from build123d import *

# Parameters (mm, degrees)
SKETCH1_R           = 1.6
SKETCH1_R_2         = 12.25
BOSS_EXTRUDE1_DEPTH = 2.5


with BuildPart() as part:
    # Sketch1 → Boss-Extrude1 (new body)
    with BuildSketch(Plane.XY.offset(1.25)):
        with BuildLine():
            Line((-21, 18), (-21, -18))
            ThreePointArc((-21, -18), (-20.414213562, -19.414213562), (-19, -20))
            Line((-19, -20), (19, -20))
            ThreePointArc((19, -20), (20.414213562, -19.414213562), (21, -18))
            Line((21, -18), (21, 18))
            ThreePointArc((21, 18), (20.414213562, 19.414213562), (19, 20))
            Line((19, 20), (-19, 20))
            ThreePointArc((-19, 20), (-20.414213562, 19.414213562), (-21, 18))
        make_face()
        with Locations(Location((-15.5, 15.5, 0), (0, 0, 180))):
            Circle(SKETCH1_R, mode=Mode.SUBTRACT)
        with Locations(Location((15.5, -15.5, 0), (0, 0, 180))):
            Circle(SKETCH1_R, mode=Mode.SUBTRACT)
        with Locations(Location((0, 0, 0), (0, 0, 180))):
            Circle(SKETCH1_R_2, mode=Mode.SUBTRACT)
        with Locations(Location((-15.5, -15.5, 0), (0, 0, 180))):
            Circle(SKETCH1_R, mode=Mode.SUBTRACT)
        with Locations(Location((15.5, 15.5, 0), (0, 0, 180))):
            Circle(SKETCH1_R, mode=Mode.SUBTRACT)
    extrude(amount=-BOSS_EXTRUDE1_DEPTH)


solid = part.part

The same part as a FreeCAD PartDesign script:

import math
import FreeCAD as App
import Part
import Sketcher

V = App.Vector

doc = App.newDocument("Part")
params = doc.addObject("Spreadsheet::Sheet", "Params")
for row, (alias, value) in enumerate([
    ("sketch1_radius", "2 mm"),
    ("sketch1_diameter", "3.2 mm"),
    ("sketch1_diameter2", "24.5 mm"),
    ("sketch1_width", "38 mm"),
    ("sketch1_height", "36 mm"),
    ("pad1_length", "2.5 mm"),
], start=1):
    params.set(f"A{row}", alias)
    params.set(f"B{row}", "=" + value)
    params.setAlias(f"B{row}", alias)

body = doc.addObject("PartDesign::Body", "Body")

sketch1 = doc.addObject("Sketcher::SketchObject", "Sketch")
body.addObject(sketch1)
sketch1.AttachmentSupport = (doc.XY_Plane, [""])
sketch1.MapMode = "FlatFace"
sketch1.AttachmentOffset = App.Placement(V(0, 0, 1.25), App.Rotation())
sketch1.addGeometry([
    Part.LineSegment(V(-21, 18, 0), V(-21, -18, 0)),
    Part.ArcOfCircle(Part.Circle(V(-19, -18, 0), V(0, 0, 1), 2), math.radians(-180), math.radians(-90)),
    Part.LineSegment(V(-19, -20, 0), V(19, -20, 0)),
    Part.ArcOfCircle(Part.Circle(V(19, -18, 0), V(0, 0, 1), 2), math.radians(-90), math.radians(0)),
    Part.LineSegment(V(21, -18, 0), V(21, 18, 0)),
    Part.ArcOfCircle(Part.Circle(V(19, 18, 0), V(0, 0, 1), 2), math.radians(0), math.radians(90)),
    Part.LineSegment(V(19, 20, 0), V(-19, 20, 0)),
    Part.ArcOfCircle(Part.Circle(V(-19, 18, 0), V(0, 0, 1), 2), math.radians(90), math.radians(180)),
    Part.Circle(V(-15.5, -15.5, 0), V(0, 0, 1), 1.6),
    Part.Circle(V(15.5, -15.5, 0), V(0, 0, 1), 1.6),
    Part.Circle(V(-15.5, 15.5, 0), V(0, 0, 1), 1.6),
    Part.Circle(V(0, 0, 0), V(0, 0, 1), 12.2),
    Part.Circle(V(15.5, 15.5, 0), V(0, 0, 1), 1.6),
], False)
sketch1.addConstraint([
    Sketcher.Constraint("Tangent", 0, 2, 1, 1),
    Sketcher.Constraint("Tangent", 1, 2, 2, 1),
    Sketcher.Constraint("Tangent", 2, 2, 3, 1),
    Sketcher.Constraint("Tangent", 3, 2, 4, 1),
    Sketcher.Constraint("Tangent", 4, 2, 5, 1),
    Sketcher.Constraint("Tangent", 5, 2, 6, 1),
    Sketcher.Constraint("Tangent", 6, 2, 7, 1),
    Sketcher.Constraint("Tangent", 7, 2, 0, 1),
    Sketcher.Constraint("Vertical", 0),
    Sketcher.Constraint("Horizontal", 2),
    Sketcher.Constraint("Vertical", 4),
    Sketcher.Constraint("Horizontal", 6),
    Sketcher.Constraint("Coincident", 11, 3, -1, 1),
    Sketcher.Constraint("Equal", 1, 3),
    Sketcher.Constraint("Equal", 3, 5),
    Sketcher.Constraint("Equal", 5, 7),
    Sketcher.Constraint("Equal", 8, 9),
    Sketcher.Constraint("Equal", 9, 10),
    Sketcher.Constraint("Equal", 10, 12),
    Sketcher.Constraint("Symmetric", 1, 3, 5, 3, -1, 1),
    Sketcher.Constraint("Symmetric", 9, 3, 10, 3, -1, 1),
    Sketcher.Constraint("Symmetric", 8, 3, 12, 3, -1, 1),
    Sketcher.Constraint("Symmetric", 8, 3, 9, 3, -2),
    Sketcher.Constraint("Radius", 1, 2.0),
    Sketcher.Constraint("Diameter", 8, 3.2),
    Sketcher.Constraint("Diameter", 11, 24.5),
    Sketcher.Constraint("DistanceX", 2, 1, 2, 2, 38.0),
    Sketcher.Constraint("DistanceY", 0, 2, 0, 1, 36.0),
    Sketcher.Constraint("DistanceX", 8, 3, 9, 3, 31.0),
    Sketcher.Constraint("DistanceY", 8, 3, 10, 3, 31.0),
])
sketch1.setExpression("Constraints[23]", "Params.sketch1_radius")
sketch1.setExpression("Constraints[24]", "Params.sketch1_diameter")
sketch1.setExpression("Constraints[25]", "Params.sketch1_diameter2")
sketch1.setExpression("Constraints[26]", "Params.sketch1_width")
sketch1.setExpression("Constraints[27]", "Params.sketch1_height")
pad1 = doc.addObject("PartDesign::Pad", "Pad")
body.addObject(pad1)
pad1.Profile = sketch1
pad1.setExpression("Length", "Params.pad1_length")
pad1.Reversed = True

doc.recompute()
